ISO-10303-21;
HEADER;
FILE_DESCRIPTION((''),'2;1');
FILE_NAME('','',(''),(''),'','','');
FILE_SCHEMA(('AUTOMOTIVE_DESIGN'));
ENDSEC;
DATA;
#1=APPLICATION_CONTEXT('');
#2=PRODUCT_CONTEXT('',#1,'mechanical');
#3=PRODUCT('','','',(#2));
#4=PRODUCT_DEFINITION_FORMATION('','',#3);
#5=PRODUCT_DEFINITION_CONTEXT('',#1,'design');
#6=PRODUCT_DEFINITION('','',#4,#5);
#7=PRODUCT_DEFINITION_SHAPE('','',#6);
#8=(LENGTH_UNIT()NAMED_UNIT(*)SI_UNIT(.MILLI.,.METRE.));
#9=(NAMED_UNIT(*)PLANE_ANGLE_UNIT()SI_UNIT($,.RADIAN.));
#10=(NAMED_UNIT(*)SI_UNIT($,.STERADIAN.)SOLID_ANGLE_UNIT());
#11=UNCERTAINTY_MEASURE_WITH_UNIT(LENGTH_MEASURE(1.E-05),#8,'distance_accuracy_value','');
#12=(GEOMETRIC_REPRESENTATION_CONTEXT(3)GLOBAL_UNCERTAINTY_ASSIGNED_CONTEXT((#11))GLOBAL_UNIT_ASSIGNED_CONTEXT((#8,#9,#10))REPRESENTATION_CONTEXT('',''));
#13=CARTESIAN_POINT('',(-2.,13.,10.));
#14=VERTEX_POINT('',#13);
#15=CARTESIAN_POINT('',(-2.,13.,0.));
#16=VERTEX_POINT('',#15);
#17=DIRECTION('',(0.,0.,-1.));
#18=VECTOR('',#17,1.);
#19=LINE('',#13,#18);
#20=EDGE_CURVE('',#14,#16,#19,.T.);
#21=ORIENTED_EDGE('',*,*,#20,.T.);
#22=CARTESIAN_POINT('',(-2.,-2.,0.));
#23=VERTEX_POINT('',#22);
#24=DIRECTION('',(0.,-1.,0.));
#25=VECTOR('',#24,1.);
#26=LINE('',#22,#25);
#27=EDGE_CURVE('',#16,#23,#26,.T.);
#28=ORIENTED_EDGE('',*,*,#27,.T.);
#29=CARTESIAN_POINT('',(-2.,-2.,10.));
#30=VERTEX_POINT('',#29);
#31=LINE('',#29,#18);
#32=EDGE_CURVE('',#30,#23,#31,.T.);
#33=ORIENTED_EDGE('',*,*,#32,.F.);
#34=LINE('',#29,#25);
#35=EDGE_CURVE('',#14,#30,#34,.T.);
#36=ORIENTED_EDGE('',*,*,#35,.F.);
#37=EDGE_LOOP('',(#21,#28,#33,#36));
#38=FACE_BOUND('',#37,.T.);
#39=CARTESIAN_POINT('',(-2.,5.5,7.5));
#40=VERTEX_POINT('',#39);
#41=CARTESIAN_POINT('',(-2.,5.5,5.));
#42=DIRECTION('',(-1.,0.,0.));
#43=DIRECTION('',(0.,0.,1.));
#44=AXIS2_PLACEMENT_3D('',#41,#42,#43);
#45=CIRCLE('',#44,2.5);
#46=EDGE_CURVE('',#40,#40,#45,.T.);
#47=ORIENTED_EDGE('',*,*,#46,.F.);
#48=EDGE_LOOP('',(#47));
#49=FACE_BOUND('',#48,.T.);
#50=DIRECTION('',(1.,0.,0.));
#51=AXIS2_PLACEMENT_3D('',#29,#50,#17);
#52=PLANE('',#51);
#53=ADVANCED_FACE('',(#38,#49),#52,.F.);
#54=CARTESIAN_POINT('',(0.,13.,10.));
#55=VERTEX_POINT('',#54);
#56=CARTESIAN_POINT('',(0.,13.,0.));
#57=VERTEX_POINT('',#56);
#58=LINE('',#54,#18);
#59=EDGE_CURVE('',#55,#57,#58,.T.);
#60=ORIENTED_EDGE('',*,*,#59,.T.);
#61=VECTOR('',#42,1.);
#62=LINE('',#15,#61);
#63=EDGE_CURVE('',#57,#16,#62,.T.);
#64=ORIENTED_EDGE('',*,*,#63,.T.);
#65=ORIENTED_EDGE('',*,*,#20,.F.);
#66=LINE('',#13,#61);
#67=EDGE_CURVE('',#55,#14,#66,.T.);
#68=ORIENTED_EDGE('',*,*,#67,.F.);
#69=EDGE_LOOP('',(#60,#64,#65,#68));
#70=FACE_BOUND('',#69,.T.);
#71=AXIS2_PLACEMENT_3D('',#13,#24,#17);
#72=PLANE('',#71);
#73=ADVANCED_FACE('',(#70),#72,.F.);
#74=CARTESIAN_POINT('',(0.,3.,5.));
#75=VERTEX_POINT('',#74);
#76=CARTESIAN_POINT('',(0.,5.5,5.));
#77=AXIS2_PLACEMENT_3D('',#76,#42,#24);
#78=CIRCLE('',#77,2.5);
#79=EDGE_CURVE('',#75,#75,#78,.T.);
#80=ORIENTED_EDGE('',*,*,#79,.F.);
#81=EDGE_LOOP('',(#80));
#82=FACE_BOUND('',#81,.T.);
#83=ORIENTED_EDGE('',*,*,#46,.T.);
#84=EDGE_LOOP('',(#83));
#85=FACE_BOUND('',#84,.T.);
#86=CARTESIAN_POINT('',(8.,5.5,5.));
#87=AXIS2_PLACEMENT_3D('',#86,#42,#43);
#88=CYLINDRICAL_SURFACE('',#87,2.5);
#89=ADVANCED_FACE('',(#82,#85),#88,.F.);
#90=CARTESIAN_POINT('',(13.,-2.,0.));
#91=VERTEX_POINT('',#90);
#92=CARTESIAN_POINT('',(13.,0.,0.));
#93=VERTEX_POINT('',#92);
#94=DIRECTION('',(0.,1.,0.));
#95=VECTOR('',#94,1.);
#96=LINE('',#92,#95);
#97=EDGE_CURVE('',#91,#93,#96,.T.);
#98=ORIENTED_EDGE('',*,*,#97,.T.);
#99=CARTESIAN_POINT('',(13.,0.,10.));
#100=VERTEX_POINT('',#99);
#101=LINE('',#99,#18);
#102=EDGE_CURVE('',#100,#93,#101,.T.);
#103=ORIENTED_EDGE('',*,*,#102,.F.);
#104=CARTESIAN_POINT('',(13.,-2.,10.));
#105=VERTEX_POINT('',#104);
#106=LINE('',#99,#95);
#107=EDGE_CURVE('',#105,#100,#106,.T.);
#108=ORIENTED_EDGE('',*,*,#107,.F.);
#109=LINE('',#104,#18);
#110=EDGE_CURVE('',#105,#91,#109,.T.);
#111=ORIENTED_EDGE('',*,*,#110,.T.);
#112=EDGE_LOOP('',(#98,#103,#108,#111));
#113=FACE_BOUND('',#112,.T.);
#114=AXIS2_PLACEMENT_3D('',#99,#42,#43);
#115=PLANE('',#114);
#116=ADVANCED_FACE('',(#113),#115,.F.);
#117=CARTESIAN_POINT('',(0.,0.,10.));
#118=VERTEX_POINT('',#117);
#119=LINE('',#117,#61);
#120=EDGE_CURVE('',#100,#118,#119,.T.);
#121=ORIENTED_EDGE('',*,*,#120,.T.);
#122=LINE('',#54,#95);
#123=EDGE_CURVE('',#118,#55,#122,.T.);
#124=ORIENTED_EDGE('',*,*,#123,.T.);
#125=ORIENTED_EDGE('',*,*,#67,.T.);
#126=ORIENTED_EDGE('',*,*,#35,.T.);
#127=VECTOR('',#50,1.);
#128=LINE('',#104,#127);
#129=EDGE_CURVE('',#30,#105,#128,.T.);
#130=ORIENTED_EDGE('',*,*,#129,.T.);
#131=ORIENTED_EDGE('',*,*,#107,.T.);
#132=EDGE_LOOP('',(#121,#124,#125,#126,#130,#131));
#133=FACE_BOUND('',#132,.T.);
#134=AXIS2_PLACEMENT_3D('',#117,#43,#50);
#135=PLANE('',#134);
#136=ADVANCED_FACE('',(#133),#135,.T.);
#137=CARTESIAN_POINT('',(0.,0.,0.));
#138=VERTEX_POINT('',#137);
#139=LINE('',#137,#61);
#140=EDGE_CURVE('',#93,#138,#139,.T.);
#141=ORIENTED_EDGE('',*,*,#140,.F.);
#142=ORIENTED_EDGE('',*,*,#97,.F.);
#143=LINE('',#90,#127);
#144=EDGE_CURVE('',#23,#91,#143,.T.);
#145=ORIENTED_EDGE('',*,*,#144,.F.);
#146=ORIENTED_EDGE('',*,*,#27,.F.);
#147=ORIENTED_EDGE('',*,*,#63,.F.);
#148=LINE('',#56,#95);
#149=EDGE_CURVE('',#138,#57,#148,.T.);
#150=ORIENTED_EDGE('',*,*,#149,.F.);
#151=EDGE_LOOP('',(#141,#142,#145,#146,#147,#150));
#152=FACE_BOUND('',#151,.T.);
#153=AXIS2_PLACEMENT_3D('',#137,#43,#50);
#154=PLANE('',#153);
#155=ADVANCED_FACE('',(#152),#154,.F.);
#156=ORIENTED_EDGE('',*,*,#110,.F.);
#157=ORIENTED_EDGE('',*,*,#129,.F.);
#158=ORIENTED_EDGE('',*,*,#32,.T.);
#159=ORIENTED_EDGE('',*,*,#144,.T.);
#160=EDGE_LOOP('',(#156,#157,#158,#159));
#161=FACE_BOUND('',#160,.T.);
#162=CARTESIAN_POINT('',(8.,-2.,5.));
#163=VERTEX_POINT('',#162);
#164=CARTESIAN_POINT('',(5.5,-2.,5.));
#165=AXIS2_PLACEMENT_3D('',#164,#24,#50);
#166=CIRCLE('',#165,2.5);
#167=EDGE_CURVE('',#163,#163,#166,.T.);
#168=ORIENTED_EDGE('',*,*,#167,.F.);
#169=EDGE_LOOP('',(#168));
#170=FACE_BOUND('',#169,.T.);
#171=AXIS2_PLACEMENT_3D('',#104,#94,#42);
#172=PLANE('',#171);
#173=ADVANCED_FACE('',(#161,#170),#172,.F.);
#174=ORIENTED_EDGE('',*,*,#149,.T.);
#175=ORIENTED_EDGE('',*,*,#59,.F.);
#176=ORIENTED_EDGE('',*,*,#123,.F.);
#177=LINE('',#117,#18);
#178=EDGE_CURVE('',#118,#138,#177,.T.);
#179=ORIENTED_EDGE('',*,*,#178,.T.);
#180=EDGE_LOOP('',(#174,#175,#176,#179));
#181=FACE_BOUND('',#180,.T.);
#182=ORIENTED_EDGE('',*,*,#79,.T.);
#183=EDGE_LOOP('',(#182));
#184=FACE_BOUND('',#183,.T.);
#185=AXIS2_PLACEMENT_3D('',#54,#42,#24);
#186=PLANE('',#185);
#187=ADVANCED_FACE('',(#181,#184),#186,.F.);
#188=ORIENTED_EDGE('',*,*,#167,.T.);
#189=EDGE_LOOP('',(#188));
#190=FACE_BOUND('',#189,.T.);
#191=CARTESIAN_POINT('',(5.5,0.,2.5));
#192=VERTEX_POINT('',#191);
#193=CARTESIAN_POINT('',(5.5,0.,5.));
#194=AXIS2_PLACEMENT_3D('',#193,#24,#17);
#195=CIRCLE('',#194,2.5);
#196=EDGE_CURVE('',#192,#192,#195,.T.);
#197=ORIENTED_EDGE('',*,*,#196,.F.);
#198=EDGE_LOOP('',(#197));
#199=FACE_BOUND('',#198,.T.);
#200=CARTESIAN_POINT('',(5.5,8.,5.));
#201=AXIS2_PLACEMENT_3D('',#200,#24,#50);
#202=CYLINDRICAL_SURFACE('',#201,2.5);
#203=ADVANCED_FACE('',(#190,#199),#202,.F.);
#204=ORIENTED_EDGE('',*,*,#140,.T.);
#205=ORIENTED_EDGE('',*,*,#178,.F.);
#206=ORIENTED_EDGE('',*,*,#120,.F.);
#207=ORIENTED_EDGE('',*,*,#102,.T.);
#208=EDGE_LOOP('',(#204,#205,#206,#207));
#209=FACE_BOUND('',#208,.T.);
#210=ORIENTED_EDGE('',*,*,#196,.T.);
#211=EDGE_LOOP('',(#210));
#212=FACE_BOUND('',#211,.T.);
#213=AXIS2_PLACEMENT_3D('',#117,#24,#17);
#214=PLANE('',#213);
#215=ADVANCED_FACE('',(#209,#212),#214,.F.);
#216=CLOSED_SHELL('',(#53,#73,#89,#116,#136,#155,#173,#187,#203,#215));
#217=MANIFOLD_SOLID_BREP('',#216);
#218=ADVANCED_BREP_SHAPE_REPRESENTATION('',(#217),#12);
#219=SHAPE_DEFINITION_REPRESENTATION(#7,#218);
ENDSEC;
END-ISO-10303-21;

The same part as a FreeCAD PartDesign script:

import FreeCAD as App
import Part
import Sketcher

V = App.Vector

doc = App.newDocument("Part")
body = doc.addObject("PartDesign::Body", "Body")

# Sketch on XY plane
sketch1 = doc.addObject("Sketcher::SketchObject", "Sketch")
body.addObject(sketch1)
sketch1.AttachmentSupport = (doc.XY_Plane, [""])
sketch1.MapMode = "FlatFace"
sketch1.addGeometry([
    Part.LineSegment(V(13, 0, 0), V(0, 0, 0)),  # 0
    Part.LineSegment(V(0, 0, 0), V(0, 13, 0)),  # 1
    Part.LineSegment(V(0, 13, 0), V(-2, 13, 0)),  # 2
    Part.LineSegment(V(-2, 13, 0), V(-2, -2, 0)),  # 3
    Part.LineSegment(V(-2, -2, 0), V(13, -2, 0)),  # 4
    Part.LineSegment(V(13, -2, 0), V(13, 0, 0)),  # 5
], False)
sketch1.addConstraint([
    Sketcher.Constraint("Coincident", 0, 2, 1, 1),
    Sketcher.Constraint("Coincident", 1, 2, 2, 1),
    Sketcher.Constraint("Coincident", 2, 2, 3, 1),
    Sketcher.Constraint("Coincident", 3, 2, 4, 1),
    Sketcher.Constraint("Coincident", 4, 2, 5, 1),
    Sketcher.Constraint("Coincident", 5, 2, 0, 1),
    Sketcher.Constraint("Horizontal", 0),
    Sketcher.Constraint("Vertical", 1),
    Sketcher.Constraint("Horizontal", 2),
    Sketcher.Constraint("Vertical", 3),
    Sketcher.Constraint("Horizontal", 4),
    Sketcher.Constraint("Vertical", 5),
    Sketcher.Constraint("Coincident", 0, 2, -1, 1),
    Sketcher.Constraint("Equal", 0, 1),
    Sketcher.Constraint("Equal", 4, 3),
    Sketcher.Constraint("DistanceX", 0, 2, 0, 1, 13.0),
    Sketcher.Constraint("DistanceX", 2, 2, 2, 1, 2.0),
])
pad1 = doc.addObject("PartDesign::Pad", "Pad")
body.addObject(pad1)
pad1.Profile = sketch1
pad1.Length = 10

# Sketch on XZ plane
sketch2 = doc.addObject("Sketcher::SketchObject", "Sketch001")
body.addObject(sketch2)
sketch2.AttachmentSupport = (doc.XZ_Plane, [""])
sketch2.MapMode = "FlatFace"
sketch2.AttachmentOffset = App.Placement(V(0, 0, 2), App.Rotation())
sketch2.addGeometry(Part.Circle(V(5.5, 5, 0), V(0, 0, 1), 2.5), False)
sketch2.addConstraint([
    Sketcher.Constraint("Diameter", 0, 5.0),
    Sketcher.Constraint("DistanceY", -1, 1, 0, 3, 5.0),
    Sketcher.Constraint("DistanceX", -1, 1, 0, 3, 5.5),
])
pocket1 = doc.addObject("PartDesign::Pocket", "Pocket")
body.addObject(pocket1)
pocket1.Profile = sketch2
pocket1.Length = 10

# Sketch on YZ plane
sketch3 = doc.addObject("Sketcher::SketchObject", "Sketch002")
body.addObject(sketch3)
sketch3.AttachmentSupport = (doc.YZ_Plane, [""])
sketch3.MapMode = "FlatFace"
sketch3.AttachmentOffset = App.Placement(V(0, 0, -2), App.Rotation())
sketch3.addGeometry(Part.Circle(V(5.5, 5, 0), V(0, 0, 1), 2.5), False)
sketch3.addConstraint([
    Sketcher.Constraint("Diameter", 0, 5.0),
    Sketcher.Constraint("DistanceY", -1, 1, 0, 3, 5.0),
    Sketcher.Constraint("DistanceX", -1, 1, 0, 3, 5.5),
])
pocket2 = doc.addObject("PartDesign::Pocket", "Pocket001")
body.addObject(pocket2)
pocket2.Profile = sketch3
pocket2.Length = 10
pocket2.Reversed = True

doc.recompute()
